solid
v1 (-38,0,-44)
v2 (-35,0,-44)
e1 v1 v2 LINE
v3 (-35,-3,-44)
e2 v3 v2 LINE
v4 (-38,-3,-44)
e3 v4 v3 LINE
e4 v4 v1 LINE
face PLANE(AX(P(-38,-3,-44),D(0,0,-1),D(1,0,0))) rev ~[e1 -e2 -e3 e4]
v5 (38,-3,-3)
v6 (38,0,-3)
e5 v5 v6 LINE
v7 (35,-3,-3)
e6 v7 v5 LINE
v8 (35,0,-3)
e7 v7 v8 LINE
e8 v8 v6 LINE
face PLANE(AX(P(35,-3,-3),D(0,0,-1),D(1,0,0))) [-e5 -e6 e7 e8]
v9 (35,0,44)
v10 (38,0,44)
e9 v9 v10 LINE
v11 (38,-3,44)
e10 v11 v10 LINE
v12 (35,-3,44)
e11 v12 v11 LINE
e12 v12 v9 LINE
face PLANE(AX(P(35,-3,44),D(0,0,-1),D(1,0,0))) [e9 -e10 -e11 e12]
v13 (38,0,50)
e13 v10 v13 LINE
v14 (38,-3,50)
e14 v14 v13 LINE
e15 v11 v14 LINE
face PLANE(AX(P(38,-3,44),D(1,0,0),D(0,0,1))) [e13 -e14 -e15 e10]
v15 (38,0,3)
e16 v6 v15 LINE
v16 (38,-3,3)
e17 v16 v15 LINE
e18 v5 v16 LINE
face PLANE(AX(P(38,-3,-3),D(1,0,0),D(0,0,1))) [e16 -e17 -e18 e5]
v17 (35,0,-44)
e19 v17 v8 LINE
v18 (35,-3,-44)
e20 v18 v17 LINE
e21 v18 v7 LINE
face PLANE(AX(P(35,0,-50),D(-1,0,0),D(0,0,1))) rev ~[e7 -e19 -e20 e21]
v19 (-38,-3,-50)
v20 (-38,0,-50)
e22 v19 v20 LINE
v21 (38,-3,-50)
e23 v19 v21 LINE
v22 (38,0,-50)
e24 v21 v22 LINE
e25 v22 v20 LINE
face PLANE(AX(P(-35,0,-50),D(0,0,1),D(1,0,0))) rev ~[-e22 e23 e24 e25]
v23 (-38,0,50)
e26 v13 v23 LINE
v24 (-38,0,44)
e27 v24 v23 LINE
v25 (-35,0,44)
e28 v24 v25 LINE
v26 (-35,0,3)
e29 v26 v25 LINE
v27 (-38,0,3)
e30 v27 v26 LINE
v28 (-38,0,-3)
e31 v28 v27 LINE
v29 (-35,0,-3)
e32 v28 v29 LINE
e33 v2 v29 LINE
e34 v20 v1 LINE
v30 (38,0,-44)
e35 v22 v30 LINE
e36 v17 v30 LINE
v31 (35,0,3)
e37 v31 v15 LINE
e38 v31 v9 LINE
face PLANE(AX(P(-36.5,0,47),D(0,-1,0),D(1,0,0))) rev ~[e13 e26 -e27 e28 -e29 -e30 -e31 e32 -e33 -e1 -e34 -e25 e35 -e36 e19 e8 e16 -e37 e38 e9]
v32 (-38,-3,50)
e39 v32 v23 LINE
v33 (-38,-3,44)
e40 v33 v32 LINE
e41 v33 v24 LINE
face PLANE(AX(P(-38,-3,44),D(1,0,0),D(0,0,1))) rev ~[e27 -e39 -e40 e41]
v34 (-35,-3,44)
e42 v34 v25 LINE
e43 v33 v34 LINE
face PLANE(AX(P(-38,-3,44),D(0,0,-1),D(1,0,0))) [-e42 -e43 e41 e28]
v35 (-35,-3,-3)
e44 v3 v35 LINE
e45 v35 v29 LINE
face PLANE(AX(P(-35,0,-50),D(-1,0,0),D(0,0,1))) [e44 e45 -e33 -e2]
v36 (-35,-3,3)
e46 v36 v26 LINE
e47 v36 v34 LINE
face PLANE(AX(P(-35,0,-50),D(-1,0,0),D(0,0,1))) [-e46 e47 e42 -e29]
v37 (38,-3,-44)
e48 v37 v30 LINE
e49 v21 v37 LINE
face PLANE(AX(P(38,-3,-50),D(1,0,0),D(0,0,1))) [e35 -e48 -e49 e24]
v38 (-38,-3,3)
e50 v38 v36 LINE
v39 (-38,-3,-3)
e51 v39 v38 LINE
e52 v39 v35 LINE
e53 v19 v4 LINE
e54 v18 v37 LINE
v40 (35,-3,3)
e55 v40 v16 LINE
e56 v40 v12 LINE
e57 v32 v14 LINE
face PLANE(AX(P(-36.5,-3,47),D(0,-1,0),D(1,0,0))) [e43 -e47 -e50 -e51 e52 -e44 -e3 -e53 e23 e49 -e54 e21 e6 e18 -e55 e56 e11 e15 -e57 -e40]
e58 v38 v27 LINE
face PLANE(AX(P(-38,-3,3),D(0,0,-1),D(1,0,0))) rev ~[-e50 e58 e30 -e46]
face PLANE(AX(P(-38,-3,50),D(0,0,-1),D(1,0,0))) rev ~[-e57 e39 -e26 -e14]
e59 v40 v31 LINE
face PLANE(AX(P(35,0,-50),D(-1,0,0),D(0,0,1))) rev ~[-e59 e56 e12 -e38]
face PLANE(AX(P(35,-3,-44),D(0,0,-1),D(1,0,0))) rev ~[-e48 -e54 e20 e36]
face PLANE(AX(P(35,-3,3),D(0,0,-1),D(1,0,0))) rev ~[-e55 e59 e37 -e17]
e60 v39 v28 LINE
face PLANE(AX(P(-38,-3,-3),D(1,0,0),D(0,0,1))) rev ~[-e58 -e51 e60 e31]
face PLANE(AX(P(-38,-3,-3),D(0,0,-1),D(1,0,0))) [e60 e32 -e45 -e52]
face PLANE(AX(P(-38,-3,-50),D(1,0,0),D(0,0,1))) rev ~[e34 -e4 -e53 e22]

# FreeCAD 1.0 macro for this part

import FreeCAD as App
import Part
import Sketcher
from FreeCAD import Vector

doc = App.newDocument("Part")
body = doc.addObject("PartDesign::Body", "Body")

sketch1 = body.newObject("Sketcher::SketchObject", "Sketch")
sketch1.AttachmentSupport = (doc.getObject("XZ_Plane"), [""])
sketch1.MapMode = "FlatFace"
sketch1.addGeometry([
    Part.LineSegment(Vector(-35, 50, 0), Vector(-35, -50, 0)),
    Part.LineSegment(Vector(-35, -50, 0), Vector(35, -50, 0)),
    Part.LineSegment(Vector(35, -50, 0), Vector(35, 50, 0)),
    Part.LineSegment(Vector(35, 50, 0), Vector(-35, 50, 0)),
], False)
sketch1.addConstraint([
    Sketcher.Constraint("Coincident", 0, 2, 1, 1),
    Sketcher.Constraint("Coincident", 1, 2, 2, 1),
    Sketcher.Constraint("Coincident", 2, 2, 3, 1),
    Sketcher.Constraint("Coincident", 3, 2, 0, 1),
    Sketcher.Constraint("Vertical", 0),
    Sketcher.Constraint("Horizontal", 1),
    Sketcher.Constraint("Vertical", 2),
    Sketcher.Constraint("Horizontal", 3),
    Sketcher.Constraint("Symmetric", 0, 2, 2, 2, -1, 1),
    Sketcher.Constraint("DistanceX", 1, 1, 1, 2, 70.0),
    Sketcher.Constraint("DistanceY", 0, 2, 0, 1, 100.0),
])
pad1 = body.newObject("PartDesign::Pad", "Pad")
pad1.Profile = sketch1
pad1.Length = 3

sketch2 = body.newObject("Sketcher::SketchObject", "Sketch001")
sketch2.AttachmentSupport = (doc.getObject("XZ_Plane"), [""])
sketch2.MapMode = "FlatFace"
sketch2.AttachmentOffset = App.Placement(Vector(0, 0, 3), App.Rotation())
sketch2.addGeometry([
    Part.LineSegment(Vector(-38, 50, 0), Vector(-38, 44, 0)),
    Part.LineSegment(Vector(-38, 44, 0), Vector(-35, 44, 0)),
    Part.LineSegment(Vector(-35, 44, 0), Vector(-35, 50, 0)),
    Part.LineSegment(Vector(-35, 50, 0), Vector(-38, 50, 0)),
    Part.LineSegment(Vector(-38, -44, 0), Vector(-38, -50, 0)),
    Part.LineSegment(Vector(-38, -50, 0), Vector(-35, -50, 0)),
    Part.LineSegment(Vector(-35, -50, 0), Vector(-35, -44, 0)),
    Part.LineSegment(Vector(-35, -44, 0), Vector(-38, -44, 0)),
    Part.LineSegment(Vector(-38, 3, 0), Vector(-38, -3, 0)),
    Part.LineSegment(Vector(-38, -3, 0), Vector(-35, -3, 0)),
    Part.LineSegment(Vector(-35, -3, 0), Vector(-35, 3, 0)),
    Part.LineSegment(Vector(-35, 3, 0), Vector(-38, 3, 0)),
    Part.LineSegment(Vector(35, 3, 0), Vector(35, -3, 0)),
    Part.LineSegment(Vector(35, -3, 0), Vector(38, -3, 0)),
    Part.LineSegment(Vector(38, -3, 0), Vector(38, 3, 0)),
    Part.LineSegment(Vector(38, 3, 0), Vector(35, 3, 0)),
    Part.LineSegment(Vector(35, -44, 0), Vector(35, -50, 0)),
    Part.LineSegment(Vector(35, -50, 0), Vector(38, -50, 0)),
    Part.LineSegment(Vector(38, -50, 0), Vector(38, -44, 0)),
    Part.LineSegment(Vector(38, -44, 0), Vector(35, -44, 0)),
    Part.LineSegment(Vector(35, 50, 0), Vector(35, 44, 0)),
    Part.LineSegment(Vector(35, 44, 0), Vector(38, 44, 0)),
    Part.LineSegment(Vector(38, 44, 0), Vector(38, 50, 0)),
    Part.LineSegment(Vector(38, 50, 0), Vector(35, 50, 0)),
], False)
sketch2.addConstraint([
    Sketcher.Constraint("Coincident", 0, 2, 1, 1),
    Sketcher.Constraint("Coincident", 1, 2, 2, 1),
    Sketcher.Constraint("Coincident", 2, 2, 3, 1),
    Sketcher.Constraint("Coincident", 3, 2, 0, 1),
    Sketcher.Constraint("Coincident", 4, 2, 5, 1),
    Sketcher.Constraint("Coincident", 5, 2, 6, 1),
    Sketcher.Constraint("Coincident", 6, 2, 7, 1),
    Sketcher.Constraint("Coincident", 7, 2, 4, 1),
    Sketcher.Constraint("Coincident", 8, 2, 9, 1),
    Sketcher.Constraint("Coincident", 9, 2, 10, 1),
    Sketcher.Constraint("Coincident", 10, 2, 11, 1),
    Sketcher.Constraint("Coincident", 11, 2, 8, 1),
    Sketcher.Constraint("Coincident", 12, 2, 13, 1),
    Sketcher.Constraint("Coincident", 13, 2, 14, 1),
    Sketcher.Constraint("Coincident", 14, 2, 15, 1),
    Sketcher.Constraint("Coincident", 15, 2, 12, 1),
    Sketcher.Constraint("Coincident", 16, 2, 17, 1),
    Sketcher.Constraint("Coincident", 17, 2, 18, 1),
    Sketcher.Constraint("Coincident", 18, 2, 19, 1),
    Sketcher.Constraint("Coincident", 19, 2, 16, 1),
    Sketcher.Constraint("Coincident", 20, 2, 21, 1),
    Sketcher.Constraint("Coincident", 21, 2, 22, 1),
    Sketcher.Constraint("Coincident", 22, 2, 23, 1),
    Sketcher.Constraint("Coincident", 23, 2, 20, 1),
    Sketcher.Constraint("Vertical", 0),
    Sketcher.Constraint("Horizontal", 1),
    Sketcher.Constraint("Vertical", 2),
    Sketcher.Constraint("Horizontal", 3),
    Sketcher.Constraint("Vertical", 4),
    Sketcher.Constraint("Horizontal", 5),
    Sketcher.Constraint("Vertical", 6),
    Sketcher.Constraint("Horizontal", 7),
    Sketcher.Constraint("Vertical", 8),
    Sketcher.Constraint("Horizontal", 9),
    Sketcher.Constraint("Vertical", 10),
    Sketcher.Constraint("Horizontal", 11),
    Sketcher.Constraint("Vertical", 12),
    Sketcher.Constraint("Horizontal", 13),
    Sketcher.Constraint("Vertical", 14),
    Sketcher.Constraint("Horizontal", 15),
    Sketcher.Constraint("Vertical", 16),
    Sketcher.Constraint("Horizontal", 17),
    Sketcher.Constraint("Vertical", 18),
    Sketcher.Constraint("Horizontal", 19),
    Sketcher.Constraint("Vertical", 20),
    Sketcher.Constraint("Horizontal", 21),
    Sketcher.Constraint("Vertical", 22),
    Sketcher.Constraint("Horizontal", 23),
    Sketcher.Constraint("Symmetric", 10, 2, 12, 2, -1, 1),
    Sketcher.Constraint("Symmetric", 8, 2, 14, 2, -1, 1),
    Sketcher.Constraint("Symmetric", 2, 2, 16, 2, -1, 1),
    Sketcher.Constraint("Symmetric", 0, 2, 18, 2, -1, 1),
    Sketcher.Constraint("Symmetric", 6, 2, 20, 2, -1, 1),
    Sketcher.Constraint("Symmetric", 4, 2, 22, 2, -1, 1),
    Sketcher.Constraint("Symmetric", 5, 2, 16, 2, -2),
    Sketcher.Constraint("Symmetric", 7, 2, 18, 2, -2),
    Sketcher.Constraint("Horizontal", 9, 2, 12, 2),
    Sketcher.Constraint("Vertical", 7, 2, 8, 2),
    Sketcher.Constraint("Vertical", 6, 2, 9, 2),
    Sketcher.Constraint("Equal", 6, 8),
    Sketcher.Constraint("DistanceX", 1, 1, 1, 2, 3.0),
    Sketcher.Constraint("DistanceY", 0, 2, 0, 1, 6.0),
    Sketcher.Constraint("DistanceX", 0, 2, -1, 1, 38.0),
    Sketcher.Constraint("DistanceY", -1, 1, 0, 2, 44.0),
])
pad2 = body.newObject("PartDesign::Pad", "Pad001")
pad2.Profile = sketch2
pad2.Length = 3
pad2.Reversed = True

doc.recompute()
